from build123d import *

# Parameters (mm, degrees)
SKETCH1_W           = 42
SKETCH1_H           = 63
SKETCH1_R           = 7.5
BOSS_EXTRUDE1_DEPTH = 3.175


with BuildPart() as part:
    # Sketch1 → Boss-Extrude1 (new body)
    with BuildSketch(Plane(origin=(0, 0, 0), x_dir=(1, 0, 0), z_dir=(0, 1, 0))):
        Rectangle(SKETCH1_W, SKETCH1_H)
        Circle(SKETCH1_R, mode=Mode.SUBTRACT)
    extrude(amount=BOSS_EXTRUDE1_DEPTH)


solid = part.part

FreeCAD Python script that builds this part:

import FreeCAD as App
import Part
import Sketcher
from FreeCAD import Vector
Q = App.Units.Quantity

doc = App.newDocument("Part")
body = doc.addObject("PartDesign::Body", "Body")

# Sketch on XZ plane
sketch1 = doc.addObject("Sketcher::SketchObject", "Sketch")
body.addObject(sketch1)
sketch1.AttachmentSupport = (doc.XZ_Plane, [""])
sketch1.MapMode = "FlatFace"
sketch1.addGeometry([
    Part.LineSegment(Vector(-21, -32, 0), Vector(-21, 32, 0)),  # 0
    Part.LineSegment(Vector(-21, 32, 0), Vector(21, 32, 0)),  # 1
    Part.LineSegment(Vector(21, 32, 0), Vector(21, -32, 0)),  # 2
    Part.LineSegment(Vector(21, -32, 0), Vector(-21, -32, 0)),  # 3
    Part.Circle(Vector(0, 0, 0), Vector(0, 0, 1), 8),  # 4
], False)
sketch1.addConstraint([
    Sketcher.Constraint("Coincident", 0, 2, 1, 1),
    Sketcher.Constraint("Coincident", 1, 2, 2, 1),
    Sketcher.Constraint("Coincident", 2, 2, 3, 1),
    Sketcher.Constraint("Coincident", 3, 2, 0, 1),
    Sketcher.Constraint("Vertical", 0),
    Sketcher.Constraint("Horizontal", 1),
    Sketcher.Constraint("Vertical", 2),
    Sketcher.Constraint("Horizontal", 3),
    Sketcher.Constraint("Coincident", 4, 3, -1, 1),
    Sketcher.Constraint("Symmetric", 0, 2, 2, 2, -1, 1),
    Sketcher.Constraint("Diameter", 4, Q("15 mm")),
    Sketcher.Constraint("DistanceX", 1, 1, 1, 2, Q("42 mm")),
    Sketcher.Constraint("DistanceY", 0, 1, 0, 2, Q("63 mm")),
])
pad1 = doc.addObject("PartDesign::Pad", "Pad")
body.addObject(pad1)
pad1.Profile = sketch1
pad1.Length = 3.175
pad1.Reversed = True

doc.recompute()
